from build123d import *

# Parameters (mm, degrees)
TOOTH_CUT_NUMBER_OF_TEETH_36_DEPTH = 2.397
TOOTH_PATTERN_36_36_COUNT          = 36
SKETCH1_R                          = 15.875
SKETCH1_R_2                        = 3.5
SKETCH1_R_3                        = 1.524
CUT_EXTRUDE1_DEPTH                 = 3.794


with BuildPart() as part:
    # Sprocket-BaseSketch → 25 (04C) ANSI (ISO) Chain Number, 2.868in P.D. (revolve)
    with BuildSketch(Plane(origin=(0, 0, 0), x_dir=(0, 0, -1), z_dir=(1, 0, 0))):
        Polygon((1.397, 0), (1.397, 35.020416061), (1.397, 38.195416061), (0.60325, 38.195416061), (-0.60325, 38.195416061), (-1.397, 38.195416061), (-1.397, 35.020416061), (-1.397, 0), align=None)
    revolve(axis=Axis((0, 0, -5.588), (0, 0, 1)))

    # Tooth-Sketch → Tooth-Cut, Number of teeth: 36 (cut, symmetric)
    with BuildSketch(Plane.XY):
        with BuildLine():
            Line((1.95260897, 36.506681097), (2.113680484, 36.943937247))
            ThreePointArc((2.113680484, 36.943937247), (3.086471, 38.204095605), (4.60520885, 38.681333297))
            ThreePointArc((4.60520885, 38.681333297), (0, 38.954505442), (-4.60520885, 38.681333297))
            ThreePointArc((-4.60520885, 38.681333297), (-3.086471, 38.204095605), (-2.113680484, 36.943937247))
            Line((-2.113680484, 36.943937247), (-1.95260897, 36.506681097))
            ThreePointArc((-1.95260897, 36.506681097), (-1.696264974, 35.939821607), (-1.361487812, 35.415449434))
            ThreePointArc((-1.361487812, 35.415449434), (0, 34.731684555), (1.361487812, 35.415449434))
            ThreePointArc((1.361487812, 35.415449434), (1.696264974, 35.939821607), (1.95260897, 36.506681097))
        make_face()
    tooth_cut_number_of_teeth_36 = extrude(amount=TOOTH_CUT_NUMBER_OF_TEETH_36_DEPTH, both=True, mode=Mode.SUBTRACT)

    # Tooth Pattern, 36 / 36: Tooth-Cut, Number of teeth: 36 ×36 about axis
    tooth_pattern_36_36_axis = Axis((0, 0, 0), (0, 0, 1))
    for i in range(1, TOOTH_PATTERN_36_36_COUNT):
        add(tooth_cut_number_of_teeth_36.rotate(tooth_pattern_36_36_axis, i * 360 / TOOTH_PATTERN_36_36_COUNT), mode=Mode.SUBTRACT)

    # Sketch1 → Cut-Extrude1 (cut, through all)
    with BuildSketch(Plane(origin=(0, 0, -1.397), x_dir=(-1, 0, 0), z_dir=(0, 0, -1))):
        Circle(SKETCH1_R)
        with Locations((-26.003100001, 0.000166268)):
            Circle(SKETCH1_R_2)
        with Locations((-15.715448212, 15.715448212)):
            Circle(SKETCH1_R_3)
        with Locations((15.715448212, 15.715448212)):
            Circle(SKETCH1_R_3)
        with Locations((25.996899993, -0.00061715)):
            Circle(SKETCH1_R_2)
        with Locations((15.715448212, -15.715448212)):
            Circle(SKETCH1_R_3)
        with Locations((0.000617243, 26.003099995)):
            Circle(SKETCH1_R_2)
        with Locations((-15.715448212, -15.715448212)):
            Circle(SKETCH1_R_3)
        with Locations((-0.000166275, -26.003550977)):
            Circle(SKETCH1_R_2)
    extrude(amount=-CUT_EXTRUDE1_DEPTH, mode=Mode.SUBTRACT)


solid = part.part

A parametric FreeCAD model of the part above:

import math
import FreeCAD as App
import Part
import Sketcher
from FreeCAD import Vector
Q = App.Units.Quantity

doc = App.newDocument("Part")
body = doc.addObject("PartDesign::Body", "Body")

sketch1 = body.newObject("Sketcher::SketchObject", "Sketch")
sketch1.AttachmentSupport = (doc.getObject("YZ_Plane"), [""])
sketch1.MapMode = "FlatFace"
sketch1.addGeometry([
    Part.LineSegment(Vector(0, -1.397, 0), Vector(38.195416, -1.397, 0)),
    Part.LineSegment(Vector(38.195416, -1.397, 0), Vector(38.195416, 1.397, 0)),
    Part.LineSegment(Vector(38.195416, 1.397, 0), Vector(0, 1.397, 0)),
    Part.LineSegment(Vector(0, 1.397, 0), Vector(0, -1.397, 0)),
], False)
sketch1.addConstraint([
    Sketcher.Constraint("Coincident", 0, 2, 1, 1),
    Sketcher.Constraint("Coincident", 1, 2, 2, 1),
    Sketcher.Constraint("Coincident", 2, 2, 3, 1),
    Sketcher.Constraint("Coincident", 3, 2, 0, 1),
    Sketcher.Constraint("Horizontal", 0),
    Sketcher.Constraint("Vertical", 1),
    Sketcher.Constraint("Horizontal", 2),
    Sketcher.Constraint("Vertical", 3),
    Sketcher.Constraint("Symmetric", 2, 2, 3, 2, -1, 1),
    Sketcher.Constraint("DistanceY", 1, 1, 1, 2, Q("0.11 in")),
    Sketcher.Constraint("DistanceX", 0, 1, 0, 2, Q("38.195416 mm")),
])
revolution = body.newObject("PartDesign::Revolution", "Revolution")
revolution.Profile = sketch1
revolution.ReferenceAxis = (sketch1, ["V_Axis"])
revolution.Angle = 360

sketch2 = body.newObject("Sketcher::SketchObject", "Sketch001")
sketch2.AttachmentSupport = (doc.getObject("XY_Plane"), [""])
sketch2.MapMode = "FlatFace"
sketch2.addGeometry([
    Part.LineSegment(Vector(1.952609, 36.506681, 0), Vector(2.11368, 36.943937, 0)),
    Part.ArcOfCircle(Part.Circle(Vector(4.605209, 36.026136, 0), Vector(0, 0, 1), 2.655197), math.radians(90), math.radians(159.777778)),
    Part.ArcOfCircle(Part.Circle(Vector(0, 0, 0), Vector(0, 0, 1), 38.954505), math.radians(83.210604), math.radians(96.789396)),
    Part.ArcOfCircle(Part.Circle(Vector(-4.605209, 36.026136, 0), Vector(0, 0, 1), 2.655197), math.radians(20.222222), math.radians(90)),
    Part.LineSegment(Vector(-2.11368, 36.943937, 0), Vector(-1.952609, 36.506681, 0)),
    Part.ArcOfCircle(Part.Circle(Vector(2.118889, 38.006494, 0), Vector(0, 0, 1), 4.338955), math.radians(-159.777778), math.radians(-143.333333)),
    Part.ArcOfCircle(Part.Circle(Vector(0, 36.42904, 0), Vector(0, 0, 1), 1.697355), math.radians(-143.333333), math.radians(-36.666667)),
    Part.ArcOfCircle(Part.Circle(Vector(-2.118889, 38.006494, 0), Vector(0, 0, 1), 4.338955), math.radians(-36.666667), math.radians(-20.222222)),
], False)
sketch2.addConstraint([
    Sketcher.Constraint("Tangent", 0, 2, 1, 2),
    Sketcher.Constraint("Coincident", 1, 1, 2, 1),
    Sketcher.Constraint("Coincident", 2, 2, 3, 2),
    Sketcher.Constraint("Tangent", 3, 1, 4, 1),
    Sketcher.Constraint("Tangent", 4, 2, 5, 1),
    Sketcher.Constraint("Tangent", 5, 2, 6, 1),
    Sketcher.Constraint("Tangent", 6, 2, 7, 1),
    Sketcher.Constraint("Tangent", 7, 2, 0, 1),
    Sketcher.Constraint("Coincident", 2, 3, -1, 1),
    Sketcher.Constraint("Equal", 1, 3),
    Sketcher.Constraint("Equal", 5, 7),
    Sketcher.Constraint("Symmetric", 1, 3, 3, 3, -2),
    Sketcher.Constraint("Symmetric", 5, 3, 7, 3, -2),
    Sketcher.Constraint("Vertical", 3, 3, 2, 2),
    Sketcher.Constraint("Radius", 1, Q("2.655197 mm")),
    Sketcher.Constraint("Radius", 2, Q("38.954505 mm")),
    Sketcher.Constraint("Radius", 5, Q("4.338955 mm")),
    Sketcher.Constraint("Radius", 6, Q("1.697355 mm")),
    Sketcher.Constraint("DistanceY", 1, 3, 0, 2, Q("0.917801 mm")),
    Sketcher.Constraint("DistanceX", 3, 3, 4, 2, Q("2.6526 mm")),
    Sketcher.Constraint("DistanceX", 7, 3, 5, 2, Q("0.757401 mm")),
])
pocket1 = body.newObject("PartDesign::Pocket", "Pocket")
pocket1.Profile = sketch2
pocket1.Length = 4.794
pocket1.Midplane = True
doc.recompute()

polarpattern = body.newObject("PartDesign::PolarPattern", "PolarPattern")
polarpattern.Originals = [pocket1]
polarpattern.Axis = (doc.getObject("Z_Axis"), [""])
polarpattern.Angle = 360
polarpattern.Occurrences = 36
body.Tip = polarpattern

sketch3 = body.newObject("Sketcher::SketchObject", "Sketch002")
sketch3.AttachmentSupport = (doc.getObject("XY_Plane"), [""])
sketch3.MapMode = "FlatFace"
sketch3.AttachmentOffset = App.Placement(Vector(0, 0, -0.055 * 25.4), App.Rotation())
sketch3.addGeometry([
    Part.Circle(Vector(0, 0, 0), Vector(0, 0, 1), 15.875),
    Part.Circle(Vector(26.0031, 0.000166, 0), Vector(0, 0, 1), 3.5),
    Part.Circle(Vector(15.715448, 15.715448, 0), Vector(0, 0, 1), 1.524),
    Part.Circle(Vector(-15.715448, 15.715448, 0), Vector(0, 0, 1), 1.524),
    Part.Circle(Vector(-25.9969, -0.000617, 0), Vector(0, 0, 1), 3.5),
    Part.Circle(Vector(-15.715448, -15.715448, 0), Vector(0, 0, 1), 1.524),
    Part.Circle(Vector(-0.000617, 26.0031, 0), Vector(0, 0, 1), 3.5),
    Part.Circle(Vector(15.715448, -15.715448, 0), Vector(0, 0, 1), 1.524),
    Part.Circle(Vector(0.000166, -26.003551, 0), Vector(0, 0, 1), 3.5),
], False)
sketch3.addConstraint([
    Sketcher.Constraint("Coincident", 0, 3, -1, 1),
    Sketcher.Constraint("Equal", 2, 3),
    Sketcher.Constraint("Equal", 1, 4),
    Sketcher.Constraint("Equal", 3, 5),
    Sketcher.Constraint("Equal", 4, 6),
    Sketcher.Constraint("Equal", 5, 7),
    Sketcher.Constraint("Equal", 6, 8),
    Sketcher.Constraint("Symmetric", 2, 3, 5, 3, -1, 1),
    Sketcher.Constraint("Symmetric", 3, 3, 7, 3, -1, 1),
    Sketcher.Constraint("Symmetric", 2, 3, 3, 3, -2),
    Sketcher.Constraint("Diameter", 0, Q("1.25 in")),
    Sketcher.Constraint("Diameter", 2, Q("0.12 in")),
    Sketcher.Constraint("Diameter", 1, Q("7 mm")),
    Sketcher.Constraint("DistanceX", 4, 3, -1, 1, Q("1.0235 in")),
    Sketcher.Constraint("DistanceX", -1, 1, 1, 3, Q("26.0031 mm")),
    Sketcher.Constraint("DistanceY", -1, 1, 6, 3, Q("26.0031 mm")),
    Sketcher.Constraint("DistanceX", -1, 1, 2, 3, Q("15.715448 mm")),
    Sketcher.Constraint("DistanceY", -1, 1, 2, 3, Q("15.715448 mm")),
    Sketcher.Constraint("DistanceY", 8, 3, -1, 1, Q("26.003551 mm")),
    Sketcher.Constraint("DistanceY", 1, 3, 2, 3, Q("15.715282 mm")),
    Sketcher.Constraint("DistanceY", 5, 3, 4, 3, Q("15.714831 mm")),
    Sketcher.Constraint("DistanceX", 3, 3, 6, 3, Q("15.714831 mm")),
    Sketcher.Constraint("DistanceX", 8, 3, 7, 3, Q("15.715282 mm")),
])
pocket2 = body.newObject("PartDesign::Pocket", "Pocket001")
pocket2.Profile = sketch3
pocket2.Type = "ThroughAll"
pocket2.Reversed = True

doc.recompute()
